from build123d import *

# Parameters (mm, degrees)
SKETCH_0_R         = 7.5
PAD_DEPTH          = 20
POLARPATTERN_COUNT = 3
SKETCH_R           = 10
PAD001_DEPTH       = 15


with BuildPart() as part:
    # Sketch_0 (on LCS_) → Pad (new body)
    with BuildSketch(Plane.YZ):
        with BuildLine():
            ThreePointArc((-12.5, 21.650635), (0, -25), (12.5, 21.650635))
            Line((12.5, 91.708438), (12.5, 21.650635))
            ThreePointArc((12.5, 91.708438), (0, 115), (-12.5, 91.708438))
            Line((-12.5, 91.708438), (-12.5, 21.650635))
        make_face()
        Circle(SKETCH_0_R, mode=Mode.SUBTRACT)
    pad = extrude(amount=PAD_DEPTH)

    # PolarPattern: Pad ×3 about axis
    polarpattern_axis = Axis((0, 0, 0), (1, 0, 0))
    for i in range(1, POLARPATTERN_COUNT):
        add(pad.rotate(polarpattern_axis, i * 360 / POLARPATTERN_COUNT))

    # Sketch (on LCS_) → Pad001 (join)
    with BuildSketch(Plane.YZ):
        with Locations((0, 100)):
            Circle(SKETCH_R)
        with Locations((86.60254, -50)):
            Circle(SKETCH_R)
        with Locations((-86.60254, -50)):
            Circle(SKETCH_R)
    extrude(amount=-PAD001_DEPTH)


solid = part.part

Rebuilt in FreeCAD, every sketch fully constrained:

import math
import FreeCAD as App
import Part
import Sketcher
from FreeCAD import Vector
Q = App.Units.Quantity

doc = App.newDocument("Part")
body = doc.addObject("PartDesign::Body", "Body")

sketch1 = body.newObject("Sketcher::SketchObject", "Sketch")
sketch1.AttachmentSupport = (doc.getObject("YZ_Plane"), [""])
sketch1.MapMode = "FlatFace"
sketch1.addGeometry([
    Part.ArcOfCircle(Part.Circle(Vector(0, 0, 0), Vector(0, 0, 1), 25), math.radians(120), math.radians(420)),
    Part.LineSegment(Vector(12, 22, 0), Vector(12, 92, 0)),
    Part.ArcOfCircle(Part.Circle(Vector(0, 100, 0), Vector(0, 0, 1), 15), math.radians(-34), math.radians(214)),
    Part.LineSegment(Vector(-12, 92, 0), Vector(-12, 22, 0)),
    Part.Circle(Vector(0, 0, 0), Vector(0, 0, 1), 8),
], False)
sketch1.addConstraint([
    Sketcher.Constraint("Coincident", 0, 2, 1, 1),
    Sketcher.Constraint("Coincident", 1, 2, 2, 1),
    Sketcher.Constraint("Coincident", 2, 2, 3, 1),
    Sketcher.Constraint("Coincident", 3, 2, 0, 1),
    Sketcher.Constraint("Vertical", 1),
    Sketcher.Constraint("Vertical", 3),
    Sketcher.Constraint("Coincident", 0, 3, -1, 1),
    Sketcher.Constraint("Coincident", 4, 3, -1, 1),
    Sketcher.Constraint("Symmetric", 1, 2, 2, 2, -2),
    Sketcher.Constraint("Diameter", 4, Q("15 mm")),
    Sketcher.Constraint("Radius", 0, Q("25 mm")),
    Sketcher.Constraint("Radius", 2, Q("15 mm")),
    Sketcher.Constraint("DistanceY", -1, 1, 2, 3, Q("100 mm")),
    Sketcher.Constraint("DistanceX", 2, 2, 1, 2, Q("25 mm")),
])
pad1 = body.newObject("PartDesign::Pad", "Pad")
pad1.Profile = sketch1
pad1.Length = 20
doc.recompute()

polarpattern = body.newObject("PartDesign::PolarPattern", "PolarPattern")
polarpattern.Originals = [pad1]
polarpattern.Axis = (doc.getObject("X_Axis"), [""])
polarpattern.Angle = 360
polarpattern.Occurrences = 3
body.Tip = polarpattern

sketch2 = body.newObject("Sketcher::SketchObject", "Sketch001")
sketch2.AttachmentSupport = (doc.getObject("YZ_Plane"), [""])
sketch2.MapMode = "FlatFace"
sketch2.addGeometry([
    Part.Circle(Vector(0, 100, 0), Vector(0, 0, 1), 10),
    Part.Circle(Vector(87, -50, 0), Vector(0, 0, 1), 10),
    Part.Circle(Vector(-87, -50, 0), Vector(0, 0, 1), 10),
], False)
sketch2.addConstraint([
    Sketcher.Constraint("Equal", 0, 1),
    Sketcher.Constraint("Equal", 1, 2),
    Sketcher.Constraint("Symmetric", 1, 3, 2, 3, -2),
    Sketcher.Constraint("PointOnObject", 0, 3, -2),
    Sketcher.Constraint("Diameter", 0, Q("20 mm")),
    Sketcher.Constraint("DistanceY", -1, 1, 0, 3, Q("100 mm")),
    Sketcher.Constraint("DistanceY", 1, 3, -1, 1, Q("50 mm")),
    Sketcher.Constraint("DistanceX", -1, 1, 1, 3, Q("86.60254 mm")),
])
pad2 = body.newObject("PartDesign::Pad", "Pad001")
pad2.Profile = sketch2
pad2.Length = 15
pad2.Reversed = True

doc.recompute()
